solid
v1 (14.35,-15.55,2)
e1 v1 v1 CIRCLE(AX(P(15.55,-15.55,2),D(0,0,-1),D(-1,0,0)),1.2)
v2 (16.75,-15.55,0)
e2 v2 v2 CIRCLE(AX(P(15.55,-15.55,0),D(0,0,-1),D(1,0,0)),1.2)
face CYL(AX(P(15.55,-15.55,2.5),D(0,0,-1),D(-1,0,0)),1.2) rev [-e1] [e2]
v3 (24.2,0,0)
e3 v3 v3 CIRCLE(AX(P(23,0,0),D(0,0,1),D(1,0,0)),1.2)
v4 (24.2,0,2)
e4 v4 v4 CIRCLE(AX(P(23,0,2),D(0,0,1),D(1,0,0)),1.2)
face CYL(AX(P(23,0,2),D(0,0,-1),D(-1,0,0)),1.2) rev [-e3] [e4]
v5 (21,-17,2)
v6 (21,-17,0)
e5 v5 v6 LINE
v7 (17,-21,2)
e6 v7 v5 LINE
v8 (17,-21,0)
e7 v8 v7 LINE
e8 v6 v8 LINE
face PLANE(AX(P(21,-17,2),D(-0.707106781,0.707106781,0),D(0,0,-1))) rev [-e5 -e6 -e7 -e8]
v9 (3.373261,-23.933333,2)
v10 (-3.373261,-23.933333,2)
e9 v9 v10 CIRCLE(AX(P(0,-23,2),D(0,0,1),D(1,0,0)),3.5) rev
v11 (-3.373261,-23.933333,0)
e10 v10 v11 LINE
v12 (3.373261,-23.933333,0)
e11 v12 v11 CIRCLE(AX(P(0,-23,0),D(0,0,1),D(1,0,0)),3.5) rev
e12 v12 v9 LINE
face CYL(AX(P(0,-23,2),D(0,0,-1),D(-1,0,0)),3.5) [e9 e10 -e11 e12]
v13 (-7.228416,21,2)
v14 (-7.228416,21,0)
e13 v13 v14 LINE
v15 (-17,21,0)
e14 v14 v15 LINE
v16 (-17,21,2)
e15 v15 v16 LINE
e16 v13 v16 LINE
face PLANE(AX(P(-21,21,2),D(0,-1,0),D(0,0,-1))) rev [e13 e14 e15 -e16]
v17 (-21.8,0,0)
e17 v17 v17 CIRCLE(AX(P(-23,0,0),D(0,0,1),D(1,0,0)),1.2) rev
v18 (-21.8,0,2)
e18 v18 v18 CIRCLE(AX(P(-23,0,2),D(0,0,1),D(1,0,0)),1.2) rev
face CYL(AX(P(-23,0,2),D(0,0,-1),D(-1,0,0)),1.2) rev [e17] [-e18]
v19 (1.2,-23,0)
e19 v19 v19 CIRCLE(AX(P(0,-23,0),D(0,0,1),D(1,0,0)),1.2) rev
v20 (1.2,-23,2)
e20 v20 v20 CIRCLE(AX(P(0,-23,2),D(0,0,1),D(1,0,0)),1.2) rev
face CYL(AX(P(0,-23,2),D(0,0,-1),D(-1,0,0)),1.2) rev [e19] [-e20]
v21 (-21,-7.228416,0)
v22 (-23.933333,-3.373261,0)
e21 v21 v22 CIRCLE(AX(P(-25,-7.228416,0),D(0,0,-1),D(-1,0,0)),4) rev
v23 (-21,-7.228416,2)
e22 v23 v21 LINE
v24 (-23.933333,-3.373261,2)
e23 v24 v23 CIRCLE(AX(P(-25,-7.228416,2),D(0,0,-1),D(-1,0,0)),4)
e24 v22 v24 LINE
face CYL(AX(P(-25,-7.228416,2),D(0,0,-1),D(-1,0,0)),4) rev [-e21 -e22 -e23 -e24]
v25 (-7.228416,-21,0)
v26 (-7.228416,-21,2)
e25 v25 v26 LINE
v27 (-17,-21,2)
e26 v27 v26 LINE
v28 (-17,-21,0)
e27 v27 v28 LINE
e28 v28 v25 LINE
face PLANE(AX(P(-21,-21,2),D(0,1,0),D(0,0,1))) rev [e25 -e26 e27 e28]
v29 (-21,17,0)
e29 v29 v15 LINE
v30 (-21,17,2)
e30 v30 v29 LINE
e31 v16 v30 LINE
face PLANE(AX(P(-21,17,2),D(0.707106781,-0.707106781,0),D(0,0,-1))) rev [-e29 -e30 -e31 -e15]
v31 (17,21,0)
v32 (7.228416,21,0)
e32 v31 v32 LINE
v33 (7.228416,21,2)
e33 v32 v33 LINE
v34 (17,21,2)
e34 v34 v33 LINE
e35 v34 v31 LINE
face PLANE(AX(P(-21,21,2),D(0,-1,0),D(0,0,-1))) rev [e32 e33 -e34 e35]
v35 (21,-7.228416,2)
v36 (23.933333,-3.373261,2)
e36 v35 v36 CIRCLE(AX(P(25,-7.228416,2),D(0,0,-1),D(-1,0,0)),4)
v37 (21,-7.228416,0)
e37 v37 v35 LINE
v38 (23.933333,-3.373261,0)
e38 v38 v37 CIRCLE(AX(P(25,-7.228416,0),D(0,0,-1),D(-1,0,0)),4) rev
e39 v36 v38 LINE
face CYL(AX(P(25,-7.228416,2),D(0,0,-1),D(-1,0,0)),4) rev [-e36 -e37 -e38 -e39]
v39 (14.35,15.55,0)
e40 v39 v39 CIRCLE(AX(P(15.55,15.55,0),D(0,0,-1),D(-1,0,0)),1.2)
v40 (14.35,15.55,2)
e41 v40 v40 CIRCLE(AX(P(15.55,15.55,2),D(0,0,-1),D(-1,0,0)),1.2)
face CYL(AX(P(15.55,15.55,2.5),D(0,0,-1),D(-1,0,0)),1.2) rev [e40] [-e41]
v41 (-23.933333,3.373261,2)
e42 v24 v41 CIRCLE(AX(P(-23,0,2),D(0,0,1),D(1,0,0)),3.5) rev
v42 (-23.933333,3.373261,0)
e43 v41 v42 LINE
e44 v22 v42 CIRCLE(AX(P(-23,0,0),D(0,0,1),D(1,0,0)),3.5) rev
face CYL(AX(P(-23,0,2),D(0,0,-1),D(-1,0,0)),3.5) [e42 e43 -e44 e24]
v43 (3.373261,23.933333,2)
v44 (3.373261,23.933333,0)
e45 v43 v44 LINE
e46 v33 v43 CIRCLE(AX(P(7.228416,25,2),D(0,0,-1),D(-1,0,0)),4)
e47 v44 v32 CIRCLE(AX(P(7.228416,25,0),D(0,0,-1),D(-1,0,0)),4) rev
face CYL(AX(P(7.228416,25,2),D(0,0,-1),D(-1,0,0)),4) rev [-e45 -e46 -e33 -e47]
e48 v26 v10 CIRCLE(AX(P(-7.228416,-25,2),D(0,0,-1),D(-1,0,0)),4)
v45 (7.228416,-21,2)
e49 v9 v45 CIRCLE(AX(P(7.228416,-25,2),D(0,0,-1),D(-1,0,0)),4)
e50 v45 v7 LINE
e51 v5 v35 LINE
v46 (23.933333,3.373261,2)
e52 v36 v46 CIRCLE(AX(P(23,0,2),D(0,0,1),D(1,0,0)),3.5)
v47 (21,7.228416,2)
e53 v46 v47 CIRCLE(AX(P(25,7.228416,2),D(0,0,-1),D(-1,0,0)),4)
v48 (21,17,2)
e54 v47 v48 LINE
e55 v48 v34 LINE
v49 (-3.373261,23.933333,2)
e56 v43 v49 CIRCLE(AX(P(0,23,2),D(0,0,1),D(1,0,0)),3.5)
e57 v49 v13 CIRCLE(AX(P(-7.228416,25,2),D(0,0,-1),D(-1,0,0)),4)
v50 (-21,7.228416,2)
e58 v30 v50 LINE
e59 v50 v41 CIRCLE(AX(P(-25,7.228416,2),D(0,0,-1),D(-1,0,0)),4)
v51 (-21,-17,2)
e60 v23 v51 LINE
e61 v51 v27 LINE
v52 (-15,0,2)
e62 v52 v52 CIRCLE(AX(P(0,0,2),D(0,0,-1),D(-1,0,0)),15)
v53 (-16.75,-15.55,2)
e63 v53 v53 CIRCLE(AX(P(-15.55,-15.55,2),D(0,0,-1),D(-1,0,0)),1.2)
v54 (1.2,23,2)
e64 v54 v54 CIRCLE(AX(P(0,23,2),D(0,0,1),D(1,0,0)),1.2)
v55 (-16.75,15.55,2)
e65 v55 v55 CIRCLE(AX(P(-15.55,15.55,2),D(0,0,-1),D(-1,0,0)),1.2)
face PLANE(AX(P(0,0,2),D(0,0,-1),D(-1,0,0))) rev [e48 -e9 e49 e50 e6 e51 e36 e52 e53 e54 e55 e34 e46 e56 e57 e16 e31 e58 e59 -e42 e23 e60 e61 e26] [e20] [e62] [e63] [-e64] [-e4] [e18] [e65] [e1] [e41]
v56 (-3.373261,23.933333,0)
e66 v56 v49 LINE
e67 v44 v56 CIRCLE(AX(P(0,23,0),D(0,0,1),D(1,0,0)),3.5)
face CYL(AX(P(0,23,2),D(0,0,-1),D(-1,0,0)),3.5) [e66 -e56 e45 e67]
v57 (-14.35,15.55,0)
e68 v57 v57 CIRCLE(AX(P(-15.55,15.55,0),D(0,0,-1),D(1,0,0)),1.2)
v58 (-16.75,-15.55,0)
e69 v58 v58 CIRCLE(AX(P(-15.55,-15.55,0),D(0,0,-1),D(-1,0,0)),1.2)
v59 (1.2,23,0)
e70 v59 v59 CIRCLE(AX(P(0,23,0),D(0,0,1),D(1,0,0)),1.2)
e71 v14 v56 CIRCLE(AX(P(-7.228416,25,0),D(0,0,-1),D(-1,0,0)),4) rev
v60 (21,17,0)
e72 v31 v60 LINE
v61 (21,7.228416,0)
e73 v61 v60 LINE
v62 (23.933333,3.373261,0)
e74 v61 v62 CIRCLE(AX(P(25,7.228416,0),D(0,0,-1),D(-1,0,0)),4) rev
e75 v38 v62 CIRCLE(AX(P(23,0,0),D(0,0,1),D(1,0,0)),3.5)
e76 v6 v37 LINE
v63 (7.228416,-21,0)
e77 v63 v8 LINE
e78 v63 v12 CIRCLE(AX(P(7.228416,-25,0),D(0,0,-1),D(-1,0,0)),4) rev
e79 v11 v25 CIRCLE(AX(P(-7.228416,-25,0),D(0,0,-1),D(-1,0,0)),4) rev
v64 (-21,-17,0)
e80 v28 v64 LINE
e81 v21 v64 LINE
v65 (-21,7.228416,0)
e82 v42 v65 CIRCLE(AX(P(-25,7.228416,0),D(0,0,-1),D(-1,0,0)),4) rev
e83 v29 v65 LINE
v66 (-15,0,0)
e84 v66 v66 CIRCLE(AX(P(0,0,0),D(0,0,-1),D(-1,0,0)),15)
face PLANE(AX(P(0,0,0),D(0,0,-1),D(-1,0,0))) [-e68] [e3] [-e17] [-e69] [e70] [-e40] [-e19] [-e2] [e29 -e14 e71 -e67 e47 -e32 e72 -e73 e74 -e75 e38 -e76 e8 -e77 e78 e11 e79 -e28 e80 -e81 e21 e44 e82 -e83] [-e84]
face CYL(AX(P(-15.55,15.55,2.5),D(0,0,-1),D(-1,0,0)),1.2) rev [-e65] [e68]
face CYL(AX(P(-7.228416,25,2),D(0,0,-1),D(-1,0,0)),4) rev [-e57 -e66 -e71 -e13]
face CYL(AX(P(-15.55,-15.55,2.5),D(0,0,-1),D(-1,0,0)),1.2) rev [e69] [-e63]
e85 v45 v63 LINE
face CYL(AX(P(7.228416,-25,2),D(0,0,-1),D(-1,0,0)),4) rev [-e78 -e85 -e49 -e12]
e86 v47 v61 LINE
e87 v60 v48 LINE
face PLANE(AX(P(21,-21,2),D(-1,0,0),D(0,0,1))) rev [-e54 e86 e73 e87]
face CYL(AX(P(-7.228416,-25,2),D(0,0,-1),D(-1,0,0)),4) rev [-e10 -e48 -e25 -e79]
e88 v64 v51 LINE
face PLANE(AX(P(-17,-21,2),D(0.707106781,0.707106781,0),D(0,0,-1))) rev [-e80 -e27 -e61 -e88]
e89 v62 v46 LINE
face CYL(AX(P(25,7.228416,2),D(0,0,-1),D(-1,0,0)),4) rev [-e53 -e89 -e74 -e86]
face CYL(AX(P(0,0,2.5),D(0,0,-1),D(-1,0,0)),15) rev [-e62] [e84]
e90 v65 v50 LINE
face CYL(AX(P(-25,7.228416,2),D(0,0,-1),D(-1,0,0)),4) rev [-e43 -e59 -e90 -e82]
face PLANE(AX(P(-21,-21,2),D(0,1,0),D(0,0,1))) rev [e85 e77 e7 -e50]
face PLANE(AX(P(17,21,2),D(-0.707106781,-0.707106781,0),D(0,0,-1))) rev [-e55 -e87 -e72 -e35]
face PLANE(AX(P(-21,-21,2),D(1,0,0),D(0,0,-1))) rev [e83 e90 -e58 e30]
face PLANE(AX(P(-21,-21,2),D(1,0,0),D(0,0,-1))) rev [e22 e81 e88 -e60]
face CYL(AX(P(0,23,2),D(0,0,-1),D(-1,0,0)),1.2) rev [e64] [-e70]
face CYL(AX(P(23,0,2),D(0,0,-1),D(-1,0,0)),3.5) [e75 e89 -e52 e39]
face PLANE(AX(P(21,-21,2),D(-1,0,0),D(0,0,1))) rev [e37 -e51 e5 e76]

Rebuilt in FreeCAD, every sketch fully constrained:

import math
import FreeCAD as App
import Part
import Sketcher


def edges_at(feature, points):
    """Names of the edges that pass closest to the given points."""
    edges = feature.Shape.Edges
    near = lambda p: min(range(len(edges)), key=lambda i: edges[i].distToShape(Part.Vertex(*p))[0])
    return sorted({f"Edge{near(p) + 1}" for p in points})


def add_polygon(sketch, points):
    """Adds a closed chain of lines whose ends are joined by coincident constraints."""
    first, n = sketch.GeometryCount, len(points)
    for a, b in zip(points, points[1:] + points[:1]):
        sketch.addGeometry(Part.LineSegment(App.Vector(*a, 0), App.Vector(*b, 0)), False)
    for i in range(n):
        sketch.addConstraint(Sketcher.Constraint("Coincident", first + i, 2, first + (i + 1) % n, 1))

doc = App.newDocument("Part")
body = doc.addObject("PartDesign::Body", "Body")

# Sketch on XY plane
sketch1 = body.newObject("Sketcher::SketchObject", "Sketch")
sketch1.AttachmentSupport = (doc.getObject("XY_Plane"), [""])
sketch1.MapMode = "FlatFace"
add_polygon(sketch1, [(-21, 21), (-21, -21), (21, -21), (21, 21)])  # lines 0-3
sketch1.addConstraint([
    Sketcher.Constraint("Vertical", 0),
    Sketcher.Constraint("Horizontal", 1),
    Sketcher.Constraint("Vertical", 2),
    Sketcher.Constraint("Horizontal", 3),
    Sketcher.Constraint("Symmetric", 0, 2, 2, 2, -1, 1),
    Sketcher.Constraint("Equal", 3, 0),
    Sketcher.Constraint("DistanceX", 1, 1, 1, 2, 42.0),
])
pad1 = body.newObject("PartDesign::Pad", "Pad")
pad1.Profile = sketch1
pad1.Length = 2
doc.recompute()

chamfer = body.newObject("PartDesign::Chamfer", "Chamfer")
chamfer.Base = (pad1, edges_at(pad1, [
    (21, -21, 1),
    (-21, -21, 1),
    (-21, 21, 1),
    (21, 21, 1),
]))
chamfer.Size = 4

# Sketch on XY plane
sketch2 = body.newObject("Sketcher::SketchObject", "Sketch001")
sketch2.AttachmentSupport = (doc.getObject("XY_Plane"), [""])
sketch2.MapMode = "FlatFace"
sketch2.addGeometry([
    Part.Circle(App.Vector(15.6, 15.6, 0), App.Vector(0, 0, 1), 1.2),
    Part.Circle(App.Vector(-15.6, 15.6, 0), App.Vector(0, 0, 1), 1.2),
    Part.Circle(App.Vector(-15.6, -15.6, 0), App.Vector(0, 0, 1), 1.2),
    Part.Circle(App.Vector(15.6, -15.6, 0), App.Vector(0, 0, 1), 1.2),
], False)
sketch2.addConstraint([
    Sketcher.Constraint("Equal", 0, 1),
    Sketcher.Constraint("Equal", 1, 2),
    Sketcher.Constraint("Equal", 2, 3),
    Sketcher.Constraint("Symmetric", 0, 3, 2, 3, -1, 1),
    Sketcher.Constraint("Symmetric", 1, 3, 3, 3, -1, 1),
    Sketcher.Constraint("Symmetric", 0, 3, 1, 3, -2),
    Sketcher.Constraint("Diameter", 0, 2.4),
    Sketcher.Constraint("DistanceX", 1, 3, 0, 3, 31.1),
    Sketcher.Constraint("DistanceY", 2, 3, 1, 3, 31.1),
])
pocket1 = body.newObject("PartDesign::Pocket", "Pocket")
pocket1.Profile = sketch2
pocket1.Length = 2.5
pocket1.Reversed = True

# Sketch on XY plane
sketch3 = body.newObject("Sketcher::SketchObject", "Sketch002")
sketch3.AttachmentSupport = (doc.getObject("XY_Plane"), [""])
sketch3.MapMode = "FlatFace"
sketch3.addGeometry(Part.Circle(App.Vector(0, 0, 0), App.Vector(0, 0, 1), 15), False)
sketch3.addConstraint([
    Sketcher.Constraint("Coincident", 0, 3, -1, 1),
    Sketcher.Constraint("Diameter", 0, 30.0),
])
pocket2 = body.newObject("PartDesign::Pocket", "Pocket001")
pocket2.Profile = sketch3
pocket2.Length = 2.5
pocket2.Reversed = True

# Sketch on XY plane
sketch4 = body.newObject("Sketcher::SketchObject", "Sketch003")
sketch4.AttachmentSupport = (doc.getObject("XY_Plane"), [""])
sketch4.MapMode = "FlatFace"
sketch4.addGeometry([
    Part.LineSegment(App.Vector(3.5, 19, 0), App.Vector(3.5, 23, 0)),  # 0
    Part.ArcOfCircle(Part.Circle(App.Vector(0, 23, 0), App.Vector(0, 0, 1), 3.5), math.radians(0), math.radians(180)),  # 1
    Part.LineSegment(App.Vector(-3.5, 23, 0), App.Vector(-3.5, 19, 0)),  # 2
    Part.LineSegment(App.Vector(-3.5, 19, 0), App.Vector(3.5, 19, 0)),  # 3
    Part.Circle(App.Vector(0, 23, 0), App.Vector(0, 0, 1), 1.2),  # 4
    Part.ArcOfCircle(Part.Circle(App.Vector(0, -23, 0), App.Vector(0, 0, 1), 3.5), math.radians(180), math.radians(360)),  # 5
    Part.LineSegment(App.Vector(3.5, -23, 0), App.Vector(3.5, -19, 0)),  # 6
    Part.LineSegment(App.Vector(3.5, -19, 0), App.Vector(-3.5, -19, 0)),  # 7
    Part.LineSegment(App.Vector(-3.5, -19, 0), App.Vector(-3.5, -23, 0)),  # 8
    Part.Circle(App.Vector(0, -23, 0), App.Vector(0, 0, 1), 1.2),  # 9
    Part.ArcOfCircle(Part.Circle(App.Vector(-23, 0, 0), App.Vector(0, 0, 1), 3.5), math.radians(90), math.radians(270)),  # 10
    Part.LineSegment(App.Vector(-23, -3.5, 0), App.Vector(-19, -3.5, 0)),  # 11
    Part.LineSegment(App.Vector(-19, -3.5, 0), App.Vector(-19, 3.5, 0)),  # 12
    Part.LineSegment(App.Vector(-19, 3.5, 0), App.Vector(-23, 3.5, 0)),  # 13
    Part.Circle(App.Vector(-23, 0, 0), App.Vector(0, 0, 1), 1.2),  # 14
    Part.LineSegment(App.Vector(19, -3.5, 0), App.Vector(23, -3.5, 0)),  # 15
    Part.ArcOfCircle(Part.Circle(App.Vector(23, 0, 0), App.Vector(0, 0, 1), 3.5), math.radians(-90), math.radians(90)),  # 16
    Part.LineSegment(App.Vector(23, 3.5, 0), App.Vector(19, 3.5, 0)),  # 17
    Part.LineSegment(App.Vector(19, 3.5, 0), App.Vector(19, -3.5, 0)),  # 18
    Part.Circle(App.Vector(23, 0, 0), App.Vector(0, 0, 1), 1.2),  # 19
], False)
sketch4.addConstraint([
    Sketcher.Constraint("Tangent", 0, 2, 1, 1),
    Sketcher.Constraint("Tangent", 1, 2, 2, 1),
    Sketcher.Constraint("Coincident", 2, 2, 3, 1),
    Sketcher.Constraint("Coincident", 3, 2, 0, 1),
    Sketcher.Constraint("Tangent", 5, 2, 6, 1),
    Sketcher.Constraint("Coincident", 6, 2, 7, 1),
    Sketcher.Constraint("Coincident", 7, 2, 8, 1),
    Sketcher.Constraint("Tangent", 8, 2, 5, 1),
    Sketcher.Constraint("Tangent", 10, 2, 11, 1),
    Sketcher.Constraint("Coincident", 11, 2, 12, 1),
    Sketcher.Constraint("Coincident", 12, 2, 13, 1),
    Sketcher.Constraint("Tangent", 13, 2, 10, 1),
    Sketcher.Constraint("Tangent", 15, 2, 16, 1),
    Sketcher.Constraint("Tangent", 16, 2, 17, 1),
    Sketcher.Constraint("Coincident", 17, 2, 18, 1),
    Sketcher.Constraint("Coincident", 18, 2, 15, 1),
    Sketcher.Constraint("Vertical", 0),
    Sketcher.Constraint("Vertical", 2),
    Sketcher.Constraint("Horizontal", 3),
    Sketcher.Constraint("Vertical", 6),
    Sketcher.Constraint("Horizontal", 7),
    Sketcher.Constraint("Vertical", 8),
    Sketcher.Constraint("Horizontal", 11),
    Sketcher.Constraint("Vertical", 12),
    Sketcher.Constraint("Horizontal", 13),
    Sketcher.Constraint("Horizontal", 15),
    Sketcher.Constraint("Horizontal", 17),
    Sketcher.Constraint("Vertical", 18),
    Sketcher.Constraint("Coincident", 4, 3, 1, 3),
    Sketcher.Constraint("Coincident", 9, 3, 5, 3),
    Sketcher.Constraint("Coincident", 14, 3, 10, 3),
    Sketcher.Constraint("Coincident", 19, 3, 16, 3),
    Sketcher.Constraint("Equal", 1, 5),
    Sketcher.Constraint("Equal", 4, 9),
    Sketcher.Constraint("Equal", 5, 10),
    Sketcher.Constraint("Equal", 9, 14),
    Sketcher.Constraint("Equal", 10, 16),
    Sketcher.Constraint("Equal", 14, 19),
    Sketcher.Constraint("Symmetric", 1, 3, 5, 3, -1, 1),
    Sketcher.Constraint("Symmetric", 10, 3, 16, 3, -1, 1),
    Sketcher.Constraint("Symmetric", 12, 2, 17, 2, -2),
    Sketcher.Constraint("Symmetric", 3, 2, 6, 2, -1),
    Sketcher.Constraint("Equal", 17, 0),
    Sketcher.Constraint("Diameter", 4, 2.4),
    Sketcher.Constraint("Radius", 1, 3.5),
    Sketcher.Constraint("DistanceX", 11, 1, 11, 2, 4.0),
    Sketcher.Constraint("DistanceY", -1, 1, 1, 3, 23.0),
    Sketcher.Constraint("DistanceX", 10, 3, -1, 1, 23.0),
])
pad2 = body.newObject("PartDesign::Pad", "Pad001")
pad2.Profile = sketch4
pad2.Length = 2
doc.recompute()

fillet = body.newObject("PartDesign::Fillet", "Fillet")
fillet.Base = (pad2, edges_at(pad2, [
    (-21, 3.5, 1),
    (-21, -3.5, 1),
    (-3.5, -21, 1),
    (3.5, -21, 1),
    (21, -3.5, 1),
    (21, 3.5, 1),
    (3.5, 21, 1),
    (-3.5, 21, 1),
]))
fillet.Radius = 4

doc.recompute()
